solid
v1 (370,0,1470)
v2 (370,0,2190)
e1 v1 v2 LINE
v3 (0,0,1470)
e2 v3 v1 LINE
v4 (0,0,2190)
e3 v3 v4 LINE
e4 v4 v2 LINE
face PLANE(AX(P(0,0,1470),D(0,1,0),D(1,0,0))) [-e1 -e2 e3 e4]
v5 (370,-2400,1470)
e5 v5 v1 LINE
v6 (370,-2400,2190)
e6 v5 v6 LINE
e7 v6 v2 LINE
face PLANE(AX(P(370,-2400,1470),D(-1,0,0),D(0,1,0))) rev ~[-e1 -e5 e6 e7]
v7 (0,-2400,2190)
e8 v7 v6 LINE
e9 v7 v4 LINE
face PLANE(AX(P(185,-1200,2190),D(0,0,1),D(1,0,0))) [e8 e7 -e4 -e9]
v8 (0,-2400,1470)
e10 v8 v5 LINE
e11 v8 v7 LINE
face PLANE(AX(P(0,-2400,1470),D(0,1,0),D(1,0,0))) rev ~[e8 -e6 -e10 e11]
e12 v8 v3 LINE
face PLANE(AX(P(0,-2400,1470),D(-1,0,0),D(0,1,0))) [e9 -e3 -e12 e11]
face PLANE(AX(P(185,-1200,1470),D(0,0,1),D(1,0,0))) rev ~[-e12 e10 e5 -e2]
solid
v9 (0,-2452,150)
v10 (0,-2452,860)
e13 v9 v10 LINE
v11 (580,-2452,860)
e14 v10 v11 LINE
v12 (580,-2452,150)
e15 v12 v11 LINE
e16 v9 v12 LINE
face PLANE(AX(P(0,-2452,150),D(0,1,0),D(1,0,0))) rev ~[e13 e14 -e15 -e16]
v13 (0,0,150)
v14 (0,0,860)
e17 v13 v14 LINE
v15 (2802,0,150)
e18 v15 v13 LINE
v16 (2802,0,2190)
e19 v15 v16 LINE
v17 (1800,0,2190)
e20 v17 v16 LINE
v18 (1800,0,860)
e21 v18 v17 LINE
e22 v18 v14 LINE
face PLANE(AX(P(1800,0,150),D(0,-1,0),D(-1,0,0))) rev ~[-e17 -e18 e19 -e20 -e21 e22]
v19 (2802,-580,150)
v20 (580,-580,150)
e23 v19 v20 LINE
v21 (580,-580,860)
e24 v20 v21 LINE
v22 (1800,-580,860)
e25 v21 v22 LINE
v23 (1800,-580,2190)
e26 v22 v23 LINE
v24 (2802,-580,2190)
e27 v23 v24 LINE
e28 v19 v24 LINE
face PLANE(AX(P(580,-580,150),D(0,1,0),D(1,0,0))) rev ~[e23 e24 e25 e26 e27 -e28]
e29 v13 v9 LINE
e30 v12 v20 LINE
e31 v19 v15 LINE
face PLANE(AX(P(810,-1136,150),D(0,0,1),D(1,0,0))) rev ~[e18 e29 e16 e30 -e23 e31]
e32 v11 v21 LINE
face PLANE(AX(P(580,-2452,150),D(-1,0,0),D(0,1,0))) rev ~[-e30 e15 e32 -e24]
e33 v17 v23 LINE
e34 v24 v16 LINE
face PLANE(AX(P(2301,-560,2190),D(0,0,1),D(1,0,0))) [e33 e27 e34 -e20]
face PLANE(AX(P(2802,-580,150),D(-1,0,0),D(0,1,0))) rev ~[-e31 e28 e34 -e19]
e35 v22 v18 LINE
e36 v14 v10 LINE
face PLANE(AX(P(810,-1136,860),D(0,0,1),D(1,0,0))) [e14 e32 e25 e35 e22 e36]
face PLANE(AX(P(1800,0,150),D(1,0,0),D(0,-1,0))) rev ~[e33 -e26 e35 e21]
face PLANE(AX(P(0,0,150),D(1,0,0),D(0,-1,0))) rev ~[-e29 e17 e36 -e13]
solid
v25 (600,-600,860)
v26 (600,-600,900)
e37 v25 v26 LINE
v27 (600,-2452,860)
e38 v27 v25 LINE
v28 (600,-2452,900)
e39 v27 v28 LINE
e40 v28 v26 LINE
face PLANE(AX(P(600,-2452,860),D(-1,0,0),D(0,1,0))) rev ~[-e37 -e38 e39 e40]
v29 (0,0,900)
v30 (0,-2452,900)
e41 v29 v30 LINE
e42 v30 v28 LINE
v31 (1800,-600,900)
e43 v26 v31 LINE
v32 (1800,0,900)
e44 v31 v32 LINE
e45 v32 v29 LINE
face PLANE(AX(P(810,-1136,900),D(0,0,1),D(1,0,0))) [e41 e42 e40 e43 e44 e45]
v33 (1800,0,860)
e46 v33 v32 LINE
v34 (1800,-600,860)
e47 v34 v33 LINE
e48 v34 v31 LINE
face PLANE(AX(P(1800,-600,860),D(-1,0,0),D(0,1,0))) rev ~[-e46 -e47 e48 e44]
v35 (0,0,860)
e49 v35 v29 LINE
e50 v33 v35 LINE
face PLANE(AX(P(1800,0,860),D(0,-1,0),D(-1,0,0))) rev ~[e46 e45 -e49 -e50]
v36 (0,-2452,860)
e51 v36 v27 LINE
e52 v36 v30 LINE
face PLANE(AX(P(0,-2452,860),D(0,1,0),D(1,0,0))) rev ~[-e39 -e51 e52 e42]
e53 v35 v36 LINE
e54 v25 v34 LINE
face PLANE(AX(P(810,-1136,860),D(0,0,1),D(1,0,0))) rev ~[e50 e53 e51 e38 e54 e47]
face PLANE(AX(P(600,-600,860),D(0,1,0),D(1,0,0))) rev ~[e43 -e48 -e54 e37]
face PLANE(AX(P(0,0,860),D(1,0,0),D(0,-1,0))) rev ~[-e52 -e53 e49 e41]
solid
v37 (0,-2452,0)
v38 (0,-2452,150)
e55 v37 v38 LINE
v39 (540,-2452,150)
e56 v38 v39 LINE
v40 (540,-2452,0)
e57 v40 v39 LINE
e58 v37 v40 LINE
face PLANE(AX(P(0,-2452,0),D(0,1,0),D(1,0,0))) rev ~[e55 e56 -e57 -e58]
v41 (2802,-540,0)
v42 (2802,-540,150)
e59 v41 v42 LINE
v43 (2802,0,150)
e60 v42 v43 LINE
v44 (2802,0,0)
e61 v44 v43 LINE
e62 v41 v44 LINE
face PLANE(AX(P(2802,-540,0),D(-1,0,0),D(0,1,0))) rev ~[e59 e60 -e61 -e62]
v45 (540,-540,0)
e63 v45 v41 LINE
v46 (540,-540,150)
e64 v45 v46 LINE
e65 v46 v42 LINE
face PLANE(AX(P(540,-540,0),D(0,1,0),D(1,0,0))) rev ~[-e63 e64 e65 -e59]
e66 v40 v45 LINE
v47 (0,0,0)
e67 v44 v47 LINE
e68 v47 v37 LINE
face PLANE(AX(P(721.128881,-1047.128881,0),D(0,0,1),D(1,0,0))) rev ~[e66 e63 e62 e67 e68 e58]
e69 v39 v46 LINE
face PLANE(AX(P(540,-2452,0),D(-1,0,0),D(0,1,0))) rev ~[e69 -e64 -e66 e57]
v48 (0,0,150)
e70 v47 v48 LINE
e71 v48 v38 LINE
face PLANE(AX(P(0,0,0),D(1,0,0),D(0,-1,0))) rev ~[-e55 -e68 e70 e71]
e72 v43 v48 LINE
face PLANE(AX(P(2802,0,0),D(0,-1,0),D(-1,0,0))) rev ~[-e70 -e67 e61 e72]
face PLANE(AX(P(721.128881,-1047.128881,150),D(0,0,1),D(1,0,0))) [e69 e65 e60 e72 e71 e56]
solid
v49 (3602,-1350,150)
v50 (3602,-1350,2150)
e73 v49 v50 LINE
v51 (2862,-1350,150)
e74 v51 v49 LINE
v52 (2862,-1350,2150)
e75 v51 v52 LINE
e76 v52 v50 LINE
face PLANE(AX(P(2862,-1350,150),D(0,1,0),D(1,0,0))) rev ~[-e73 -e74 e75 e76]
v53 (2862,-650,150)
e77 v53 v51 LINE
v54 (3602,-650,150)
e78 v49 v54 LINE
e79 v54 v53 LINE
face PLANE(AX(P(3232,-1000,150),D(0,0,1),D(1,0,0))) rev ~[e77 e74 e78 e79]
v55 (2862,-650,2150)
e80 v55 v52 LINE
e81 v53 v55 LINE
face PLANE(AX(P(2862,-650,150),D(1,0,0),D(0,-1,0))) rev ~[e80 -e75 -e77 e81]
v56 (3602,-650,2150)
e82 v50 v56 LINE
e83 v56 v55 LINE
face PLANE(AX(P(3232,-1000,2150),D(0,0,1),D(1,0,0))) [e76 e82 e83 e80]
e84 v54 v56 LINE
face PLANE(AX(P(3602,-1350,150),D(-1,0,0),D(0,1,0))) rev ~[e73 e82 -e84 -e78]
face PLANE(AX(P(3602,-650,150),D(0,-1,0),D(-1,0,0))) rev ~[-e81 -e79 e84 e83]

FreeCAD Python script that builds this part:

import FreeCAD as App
import Part
import Sketcher
from FreeCAD import Vector

doc = App.newDocument("Part")
body = doc.addObject("PartDesign::Body", "Body")

# Sketch on XY plane
sketch1 = doc.addObject("Sketcher::SketchObject", "Sketch")
body.addObject(sketch1)
sketch1.AttachmentSupport = (doc.XY_Plane, [""])
sketch1.MapMode = "FlatFace"
sketch1.AttachmentOffset = App.Placement(Vector(0, 0, 150), App.Rotation())
sketch1.addGeometry(Part.LineSegment(Vector(1800, -580, 0), Vector(2802, -580, 0)), False)
sketch1.addGeometry(Part.LineSegment(Vector(2802, -580, 0), Vector(2802, 0, 0)), False)
sketch1.addGeometry(Part.LineSegment(Vector(2802, 0, 0), Vector(1800, 0, 0)), False)
sketch1.addGeometry(Part.LineSegment(Vector(1800, 0, 0), Vector(1800, -580, 0)), False)
sketch1.addConstraint(Sketcher.Constraint("Coincident", 0, 2, 1, 1))
sketch1.addConstraint(Sketcher.Constraint("Coincident", 1, 2, 2, 1))
sketch1.addConstraint(Sketcher.Constraint("Coincident", 2, 2, 3, 1))
sketch1.addConstraint(Sketcher.Constraint("Coincident", 3, 2, 0, 1))
sketch1.addConstraint(Sketcher.Constraint("Horizontal", 0))
sketch1.addConstraint(Sketcher.Constraint("Vertical", 1))
sketch1.addConstraint(Sketcher.Constraint("Horizontal", 2))
sketch1.addConstraint(Sketcher.Constraint("Vertical", 3))
sketch1.addConstraint(Sketcher.Constraint("PointOnObject", 1, 2, -1))
sketch1.addConstraint(Sketcher.Constraint("DistanceX", 0, 1, 0, 2, 1002.0))
sketch1.addConstraint(Sketcher.Constraint("DistanceY", 1, 1, 1, 2, 580.0))
sketch1.addConstraint(Sketcher.Constraint("DistanceX", -1, 1, 0, 2, 2802.0))
pad1 = doc.addObject("PartDesign::Pad", "Pad")
body.addObject(pad1)
pad1.Profile = sketch1
pad1.Length = 2040

# Sketch on XY plane
sketch2 = doc.addObject("Sketcher::SketchObject", "Sketch001")
body.addObject(sketch2)
sketch2.AttachmentSupport = (doc.XY_Plane, [""])
sketch2.MapMode = "FlatFace"
sketch2.AttachmentOffset = App.Placement(Vector(0, 0, 150), App.Rotation())
sketch2.addGeometry(Part.LineSegment(Vector(1800, -580, 0), Vector(1800, 0, 0)), False)
sketch2.addGeometry(Part.LineSegment(Vector(1800, 0, 0), Vector(0, 0, 0)), False)
sketch2.addGeometry(Part.LineSegment(Vector(0, 0, 0), Vector(0, -2452, 0)), False)
sketch2.addGeometry(Part.LineSegment(Vector(0, -2452, 0), Vector(580, -2452, 0)), False)
sketch2.addGeometry(Part.LineSegment(Vector(580, -2452, 0), Vector(580, -580, 0)), False)
sketch2.addGeometry(Part.LineSegment(Vector(580, -580, 0), Vector(1800, -580, 0)), False)
sketch2.addConstraint(Sketcher.Constraint("Coincident", 0, 2, 1, 1))
sketch2.addConstraint(Sketcher.Constraint("Coincident", 1, 2, 2, 1))
sketch2.addConstraint(Sketcher.Constraint("Coincident", 2, 2, 3, 1))
sketch2.addConstraint(Sketcher.Constraint("Coincident", 3, 2, 4, 1))
sketch2.addConstraint(Sketcher.Constraint("Coincident", 4, 2, 5, 1))
sketch2.addConstraint(Sketcher.Constraint("Coincident", 5, 2, 0, 1))
sketch2.addConstraint(Sketcher.Constraint("Vertical", 0))
sketch2.addConstraint(Sketcher.Constraint("Horizontal", 1))
sketch2.addConstraint(Sketcher.Constraint("Vertical", 2))
sketch2.addConstraint(Sketcher.Constraint("Horizontal", 3))
sketch2.addConstraint(Sketcher.Constraint("Vertical", 4))
sketch2.addConstraint(Sketcher.Constraint("Horizontal", 5))
sketch2.addConstraint(Sketcher.Constraint("Coincident", 1, 2, -1, 1))
sketch2.addConstraint(Sketcher.Constraint("Equal", 3, 0))
sketch2.addConstraint(Sketcher.Constraint("DistanceX", 1, 2, 1, 1, 1800.0))
sketch2.addConstraint(Sketcher.Constraint("DistanceX", 3, 1, 3, 2, 580.0))
sketch2.addConstraint(Sketcher.Constraint("DistanceY", 2, 2, 2, 1, 2452.0))
pad2 = doc.addObject("PartDesign::Pad", "Pad001")
body.addObject(pad2)
pad2.Profile = sketch2
pad2.Length = 710
body2 = doc.addObject("PartDesign::Body", "Body001")

# Sketch on XY plane
sketch3 = doc.addObject("Sketcher::SketchObject", "Sketch002")
body2.addObject(sketch3)
sketch3.AttachmentSupport = (doc.getObject("XY_Plane001"), [""])
sketch3.MapMode = "FlatFace"
sketch3.AttachmentOffset = App.Placement(Vector(0, 0, 860), App.Rotation())
sketch3.addGeometry(Part.LineSegment(Vector(600, -2452, 0), Vector(600, -600, 0)), False)
sketch3.addGeometry(Part.LineSegment(Vector(600, -600, 0), Vector(1800, -600, 0)), False)
sketch3.addGeometry(Part.LineSegment(Vector(1800, -600, 0), Vector(1800, 0, 0)), False)
sketch3.addGeometry(Part.LineSegment(Vector(1800, 0, 0), Vector(0, 0, 0)), False)
sketch3.addGeometry(Part.LineSegment(Vector(0, 0, 0), Vector(0, -2452, 0)), False)
sketch3.addGeometry(Part.LineSegment(Vector(0, -2452, 0), Vector(600, -2452, 0)), False)
sketch3.addConstraint(Sketcher.Constraint("Coincident", 0, 2, 1, 1))
sketch3.addConstraint(Sketcher.Constraint("Coincident", 1, 2, 2, 1))
sketch3.addConstraint(Sketcher.Constraint("Coincident", 2, 2, 3, 1))
sketch3.addConstraint(Sketcher.Constraint("Coincident", 3, 2, 4, 1))
sketch3.addConstraint(Sketcher.Constraint("Coincident", 4, 2, 5, 1))
sketch3.addConstraint(Sketcher.Constraint("Coincident", 5, 2, 0, 1))
sketch3.addConstraint(Sketcher.Constraint("Vertical", 0))
sketch3.addConstraint(Sketcher.Constraint("Horizontal", 1))
sketch3.addConstraint(Sketcher.Constraint("Vertical", 2))
sketch3.addConstraint(Sketcher.Constraint("Horizontal", 3))
sketch3.addConstraint(Sketcher.Constraint("Vertical", 4))
sketch3.addConstraint(Sketcher.Constraint("Horizontal", 5))
sketch3.addConstraint(Sketcher.Constraint("Coincident", 3, 2, -1, 1))
sketch3.addConstraint(Sketcher.Constraint("Equal", 5, 2))
sketch3.addConstraint(Sketcher.Constraint("DistanceX", 1, 1, 1, 2, 1200.0))
sketch3.addConstraint(Sketcher.Constraint("DistanceX", 3, 2, 3, 1, 1800.0))
sketch3.addConstraint(Sketcher.Constraint("DistanceY", 0, 1, 0, 2, 1852.0))
pad3 = doc.addObject("PartDesign::Pad", "Pad002")
body2.addObject(pad3)
pad3.Profile = sketch3
pad3.Length = 40
body3 = doc.addObject("PartDesign::Body", "Body002")

# Sketch on XY plane
sketch4 = doc.addObject("Sketcher::SketchObject", "Sketch003")
body3.addObject(sketch4)
sketch4.AttachmentSupport = (doc.getObject("XY_Plane002"), [""])
sketch4.MapMode = "FlatFace"
sketch4.addGeometry(Part.LineSegment(Vector(0, -2452, 0), Vector(540, -2452, 0)), False)
sketch4.addGeometry(Part.LineSegment(Vector(540, -2452, 0), Vector(540, -540, 0)), False)
sketch4.addGeometry(Part.LineSegment(Vector(540, -540, 0), Vector(2802, -540, 0)), False)
sketch4.addGeometry(Part.LineSegment(Vector(2802, -540, 0), Vector(2802, 0, 0)), False)
sketch4.addGeometry(Part.LineSegment(Vector(2802, 0, 0), Vector(0, 0, 0)), False)
sketch4.addGeometry(Part.LineSegment(Vector(0, 0, 0), Vector(0, -2452, 0)), False)
sketch4.addConstraint(Sketcher.Constraint("Coincident", 0, 2, 1, 1))
sketch4.addConstraint(Sketcher.Constraint("Coincident", 1, 2, 2, 1))
sketch4.addConstraint(Sketcher.Constraint("Coincident", 2, 2, 3, 1))
sketch4.addConstraint(Sketcher.Constraint("Coincident", 3, 2, 4, 1))
sketch4.addConstraint(Sketcher.Constraint("Coincident", 4, 2, 5, 1))
sketch4.addConstraint(Sketcher.Constraint("Coincident", 5, 2, 0, 1))
sketch4.addConstraint(Sketcher.Constraint("Horizontal", 0))
sketch4.addConstraint(Sketcher.Constraint("Vertical", 1))
sketch4.addConstraint(Sketcher.Constraint("Horizontal", 2))
sketch4.addConstraint(Sketcher.Constraint("Vertical", 3))
sketch4.addConstraint(Sketcher.Constraint("Horizontal", 4))
sketch4.addConstraint(Sketcher.Constraint("Vertical", 5))
sketch4.addConstraint(Sketcher.Constraint("Coincident", 4, 2, -1, 1))
sketch4.addConstraint(Sketcher.Constraint("Equal", 0, 3))
sketch4.addConstraint(Sketcher.Constraint("DistanceX", 0, 1, 0, 2, 540.0))
sketch4.addConstraint(Sketcher.Constraint("DistanceX", 2, 1, 2, 2, 2262.0))
sketch4.addConstraint(Sketcher.Constraint("DistanceY", 1, 1, 1, 2, 1912.0))
pad4 = doc.addObject("PartDesign::Pad", "Pad003")
body3.addObject(pad4)
pad4.Profile = sketch4
pad4.Length = 150
body4 = doc.addObject("PartDesign::Body", "Body003")

# Sketch on XY plane
sketch5 = doc.addObject("Sketcher::SketchObject", "Sketch004")
body4.addObject(sketch5)
sketch5.AttachmentSupport = (doc.getObject("XY_Plane003"), [""])
sketch5.MapMode = "FlatFace"
sketch5.AttachmentOffset = App.Placement(Vector(0, 0, 150), App.Rotation())
sketch5.addGeometry(Part.LineSegment(Vector(3602, -650, 0), Vector(2862, -650, 0)), False)
sketch5.addGeometry(Part.LineSegment(Vector(2862, -650, 0), Vector(2862, -1350, 0)), False)
sketch5.addGeometry(Part.LineSegment(Vector(2862, -1350, 0), Vector(3602, -1350, 0)), False)
sketch5.addGeometry(Part.LineSegment(Vector(3602, -1350, 0), Vector(3602, -650, 0)), False)
sketch5.addConstraint(Sketcher.Constraint("Coincident", 0, 2, 1, 1))
sketch5.addConstraint(Sketcher.Constraint("Coincident", 1, 2, 2, 1))
sketch5.addConstraint(Sketcher.Constraint("Coincident", 2, 2, 3, 1))
sketch5.addConstraint(Sketcher.Constraint("Coincident", 3, 2, 0, 1))
sketch5.addConstraint(Sketcher.Constraint("Horizontal", 0))
sketch5.addConstraint(Sketcher.Constraint("Vertical", 1))
sketch5.addConstraint(Sketcher.Constraint("Horizontal", 2))
sketch5.addConstraint(Sketcher.Constraint("Vertical", 3))
sketch5.addConstraint(Sketcher.Constraint("DistanceX", 0, 2, 0, 1, 740.0))
sketch5.addConstraint(Sketcher.Constraint("DistanceY", 1, 2, 1, 1, 700.0))
sketch5.addConstraint(Sketcher.Constraint("DistanceX", -1, 1, 0, 2, 2862.0))
sketch5.addConstraint(Sketcher.Constraint("DistanceY", 0, 2, -1, 1, 650.0))
pad5 = doc.addObject("PartDesign::Pad", "Pad004")
body4.addObject(pad5)
pad5.Profile = sketch5
pad5.Length = 2000
body5 = doc.addObject("PartDesign::Body", "Body004")

# Sketch on XY plane
sketch6 = doc.addObject("Sketcher::SketchObject", "Sketch005")
body5.addObject(sketch6)
sketch6.AttachmentSupport = (doc.getObject("XY_Plane004"), [""])
sketch6.MapMode = "FlatFace"
sketch6.AttachmentOffset = App.Placement(Vector(0, 0, 1470), App.Rotation())
sketch6.addGeometry(Part.LineSegment(Vector(0, 0, 0), Vector(0, -2400, 0)), False)
sketch6.addGeometry(Part.LineSegment(Vector(0, -2400, 0), Vector(370, -2400, 0)), False)
sketch6.addGeometry(Part.LineSegment(Vector(370, -2400, 0), Vector(370, 0, 0)), False)
sketch6.addGeometry(Part.LineSegment(Vector(370, 0, 0), Vector(0, 0, 0)), False)
sketch6.addConstraint(Sketcher.Constraint("Coincident", 0, 2, 1, 1))
sketch6.addConstraint(Sketcher.Constraint("Coincident", 1, 2, 2, 1))
sketch6.addConstraint(Sketcher.Constraint("Coincident", 2, 2, 3, 1))
sketch6.addConstraint(Sketcher.Constraint("Coincident", 3, 2, 0, 1))
sketch6.addConstraint(Sketcher.Constraint("Vertical", 0))
sketch6.addConstraint(Sketcher.Constraint("Horizontal", 1))
sketch6.addConstraint(Sketcher.Constraint("Vertical", 2))
sketch6.addConstraint(Sketcher.Constraint("Horizontal", 3))
sketch6.addConstraint(Sketcher.Constraint("Coincident", 3, 2, -1, 1))
sketch6.addConstraint(Sketcher.Constraint("DistanceX", 1, 1, 1, 2, 370.0))
sketch6.addConstraint(Sketcher.Constraint("DistanceY", 0, 2, 0, 1, 2400.0))
pad6 = doc.addObject("PartDesign::Pad", "Pad005")
body5.addObject(pad6)
pad6.Profile = sketch6
pad6.Length = 720

doc.recompute()
